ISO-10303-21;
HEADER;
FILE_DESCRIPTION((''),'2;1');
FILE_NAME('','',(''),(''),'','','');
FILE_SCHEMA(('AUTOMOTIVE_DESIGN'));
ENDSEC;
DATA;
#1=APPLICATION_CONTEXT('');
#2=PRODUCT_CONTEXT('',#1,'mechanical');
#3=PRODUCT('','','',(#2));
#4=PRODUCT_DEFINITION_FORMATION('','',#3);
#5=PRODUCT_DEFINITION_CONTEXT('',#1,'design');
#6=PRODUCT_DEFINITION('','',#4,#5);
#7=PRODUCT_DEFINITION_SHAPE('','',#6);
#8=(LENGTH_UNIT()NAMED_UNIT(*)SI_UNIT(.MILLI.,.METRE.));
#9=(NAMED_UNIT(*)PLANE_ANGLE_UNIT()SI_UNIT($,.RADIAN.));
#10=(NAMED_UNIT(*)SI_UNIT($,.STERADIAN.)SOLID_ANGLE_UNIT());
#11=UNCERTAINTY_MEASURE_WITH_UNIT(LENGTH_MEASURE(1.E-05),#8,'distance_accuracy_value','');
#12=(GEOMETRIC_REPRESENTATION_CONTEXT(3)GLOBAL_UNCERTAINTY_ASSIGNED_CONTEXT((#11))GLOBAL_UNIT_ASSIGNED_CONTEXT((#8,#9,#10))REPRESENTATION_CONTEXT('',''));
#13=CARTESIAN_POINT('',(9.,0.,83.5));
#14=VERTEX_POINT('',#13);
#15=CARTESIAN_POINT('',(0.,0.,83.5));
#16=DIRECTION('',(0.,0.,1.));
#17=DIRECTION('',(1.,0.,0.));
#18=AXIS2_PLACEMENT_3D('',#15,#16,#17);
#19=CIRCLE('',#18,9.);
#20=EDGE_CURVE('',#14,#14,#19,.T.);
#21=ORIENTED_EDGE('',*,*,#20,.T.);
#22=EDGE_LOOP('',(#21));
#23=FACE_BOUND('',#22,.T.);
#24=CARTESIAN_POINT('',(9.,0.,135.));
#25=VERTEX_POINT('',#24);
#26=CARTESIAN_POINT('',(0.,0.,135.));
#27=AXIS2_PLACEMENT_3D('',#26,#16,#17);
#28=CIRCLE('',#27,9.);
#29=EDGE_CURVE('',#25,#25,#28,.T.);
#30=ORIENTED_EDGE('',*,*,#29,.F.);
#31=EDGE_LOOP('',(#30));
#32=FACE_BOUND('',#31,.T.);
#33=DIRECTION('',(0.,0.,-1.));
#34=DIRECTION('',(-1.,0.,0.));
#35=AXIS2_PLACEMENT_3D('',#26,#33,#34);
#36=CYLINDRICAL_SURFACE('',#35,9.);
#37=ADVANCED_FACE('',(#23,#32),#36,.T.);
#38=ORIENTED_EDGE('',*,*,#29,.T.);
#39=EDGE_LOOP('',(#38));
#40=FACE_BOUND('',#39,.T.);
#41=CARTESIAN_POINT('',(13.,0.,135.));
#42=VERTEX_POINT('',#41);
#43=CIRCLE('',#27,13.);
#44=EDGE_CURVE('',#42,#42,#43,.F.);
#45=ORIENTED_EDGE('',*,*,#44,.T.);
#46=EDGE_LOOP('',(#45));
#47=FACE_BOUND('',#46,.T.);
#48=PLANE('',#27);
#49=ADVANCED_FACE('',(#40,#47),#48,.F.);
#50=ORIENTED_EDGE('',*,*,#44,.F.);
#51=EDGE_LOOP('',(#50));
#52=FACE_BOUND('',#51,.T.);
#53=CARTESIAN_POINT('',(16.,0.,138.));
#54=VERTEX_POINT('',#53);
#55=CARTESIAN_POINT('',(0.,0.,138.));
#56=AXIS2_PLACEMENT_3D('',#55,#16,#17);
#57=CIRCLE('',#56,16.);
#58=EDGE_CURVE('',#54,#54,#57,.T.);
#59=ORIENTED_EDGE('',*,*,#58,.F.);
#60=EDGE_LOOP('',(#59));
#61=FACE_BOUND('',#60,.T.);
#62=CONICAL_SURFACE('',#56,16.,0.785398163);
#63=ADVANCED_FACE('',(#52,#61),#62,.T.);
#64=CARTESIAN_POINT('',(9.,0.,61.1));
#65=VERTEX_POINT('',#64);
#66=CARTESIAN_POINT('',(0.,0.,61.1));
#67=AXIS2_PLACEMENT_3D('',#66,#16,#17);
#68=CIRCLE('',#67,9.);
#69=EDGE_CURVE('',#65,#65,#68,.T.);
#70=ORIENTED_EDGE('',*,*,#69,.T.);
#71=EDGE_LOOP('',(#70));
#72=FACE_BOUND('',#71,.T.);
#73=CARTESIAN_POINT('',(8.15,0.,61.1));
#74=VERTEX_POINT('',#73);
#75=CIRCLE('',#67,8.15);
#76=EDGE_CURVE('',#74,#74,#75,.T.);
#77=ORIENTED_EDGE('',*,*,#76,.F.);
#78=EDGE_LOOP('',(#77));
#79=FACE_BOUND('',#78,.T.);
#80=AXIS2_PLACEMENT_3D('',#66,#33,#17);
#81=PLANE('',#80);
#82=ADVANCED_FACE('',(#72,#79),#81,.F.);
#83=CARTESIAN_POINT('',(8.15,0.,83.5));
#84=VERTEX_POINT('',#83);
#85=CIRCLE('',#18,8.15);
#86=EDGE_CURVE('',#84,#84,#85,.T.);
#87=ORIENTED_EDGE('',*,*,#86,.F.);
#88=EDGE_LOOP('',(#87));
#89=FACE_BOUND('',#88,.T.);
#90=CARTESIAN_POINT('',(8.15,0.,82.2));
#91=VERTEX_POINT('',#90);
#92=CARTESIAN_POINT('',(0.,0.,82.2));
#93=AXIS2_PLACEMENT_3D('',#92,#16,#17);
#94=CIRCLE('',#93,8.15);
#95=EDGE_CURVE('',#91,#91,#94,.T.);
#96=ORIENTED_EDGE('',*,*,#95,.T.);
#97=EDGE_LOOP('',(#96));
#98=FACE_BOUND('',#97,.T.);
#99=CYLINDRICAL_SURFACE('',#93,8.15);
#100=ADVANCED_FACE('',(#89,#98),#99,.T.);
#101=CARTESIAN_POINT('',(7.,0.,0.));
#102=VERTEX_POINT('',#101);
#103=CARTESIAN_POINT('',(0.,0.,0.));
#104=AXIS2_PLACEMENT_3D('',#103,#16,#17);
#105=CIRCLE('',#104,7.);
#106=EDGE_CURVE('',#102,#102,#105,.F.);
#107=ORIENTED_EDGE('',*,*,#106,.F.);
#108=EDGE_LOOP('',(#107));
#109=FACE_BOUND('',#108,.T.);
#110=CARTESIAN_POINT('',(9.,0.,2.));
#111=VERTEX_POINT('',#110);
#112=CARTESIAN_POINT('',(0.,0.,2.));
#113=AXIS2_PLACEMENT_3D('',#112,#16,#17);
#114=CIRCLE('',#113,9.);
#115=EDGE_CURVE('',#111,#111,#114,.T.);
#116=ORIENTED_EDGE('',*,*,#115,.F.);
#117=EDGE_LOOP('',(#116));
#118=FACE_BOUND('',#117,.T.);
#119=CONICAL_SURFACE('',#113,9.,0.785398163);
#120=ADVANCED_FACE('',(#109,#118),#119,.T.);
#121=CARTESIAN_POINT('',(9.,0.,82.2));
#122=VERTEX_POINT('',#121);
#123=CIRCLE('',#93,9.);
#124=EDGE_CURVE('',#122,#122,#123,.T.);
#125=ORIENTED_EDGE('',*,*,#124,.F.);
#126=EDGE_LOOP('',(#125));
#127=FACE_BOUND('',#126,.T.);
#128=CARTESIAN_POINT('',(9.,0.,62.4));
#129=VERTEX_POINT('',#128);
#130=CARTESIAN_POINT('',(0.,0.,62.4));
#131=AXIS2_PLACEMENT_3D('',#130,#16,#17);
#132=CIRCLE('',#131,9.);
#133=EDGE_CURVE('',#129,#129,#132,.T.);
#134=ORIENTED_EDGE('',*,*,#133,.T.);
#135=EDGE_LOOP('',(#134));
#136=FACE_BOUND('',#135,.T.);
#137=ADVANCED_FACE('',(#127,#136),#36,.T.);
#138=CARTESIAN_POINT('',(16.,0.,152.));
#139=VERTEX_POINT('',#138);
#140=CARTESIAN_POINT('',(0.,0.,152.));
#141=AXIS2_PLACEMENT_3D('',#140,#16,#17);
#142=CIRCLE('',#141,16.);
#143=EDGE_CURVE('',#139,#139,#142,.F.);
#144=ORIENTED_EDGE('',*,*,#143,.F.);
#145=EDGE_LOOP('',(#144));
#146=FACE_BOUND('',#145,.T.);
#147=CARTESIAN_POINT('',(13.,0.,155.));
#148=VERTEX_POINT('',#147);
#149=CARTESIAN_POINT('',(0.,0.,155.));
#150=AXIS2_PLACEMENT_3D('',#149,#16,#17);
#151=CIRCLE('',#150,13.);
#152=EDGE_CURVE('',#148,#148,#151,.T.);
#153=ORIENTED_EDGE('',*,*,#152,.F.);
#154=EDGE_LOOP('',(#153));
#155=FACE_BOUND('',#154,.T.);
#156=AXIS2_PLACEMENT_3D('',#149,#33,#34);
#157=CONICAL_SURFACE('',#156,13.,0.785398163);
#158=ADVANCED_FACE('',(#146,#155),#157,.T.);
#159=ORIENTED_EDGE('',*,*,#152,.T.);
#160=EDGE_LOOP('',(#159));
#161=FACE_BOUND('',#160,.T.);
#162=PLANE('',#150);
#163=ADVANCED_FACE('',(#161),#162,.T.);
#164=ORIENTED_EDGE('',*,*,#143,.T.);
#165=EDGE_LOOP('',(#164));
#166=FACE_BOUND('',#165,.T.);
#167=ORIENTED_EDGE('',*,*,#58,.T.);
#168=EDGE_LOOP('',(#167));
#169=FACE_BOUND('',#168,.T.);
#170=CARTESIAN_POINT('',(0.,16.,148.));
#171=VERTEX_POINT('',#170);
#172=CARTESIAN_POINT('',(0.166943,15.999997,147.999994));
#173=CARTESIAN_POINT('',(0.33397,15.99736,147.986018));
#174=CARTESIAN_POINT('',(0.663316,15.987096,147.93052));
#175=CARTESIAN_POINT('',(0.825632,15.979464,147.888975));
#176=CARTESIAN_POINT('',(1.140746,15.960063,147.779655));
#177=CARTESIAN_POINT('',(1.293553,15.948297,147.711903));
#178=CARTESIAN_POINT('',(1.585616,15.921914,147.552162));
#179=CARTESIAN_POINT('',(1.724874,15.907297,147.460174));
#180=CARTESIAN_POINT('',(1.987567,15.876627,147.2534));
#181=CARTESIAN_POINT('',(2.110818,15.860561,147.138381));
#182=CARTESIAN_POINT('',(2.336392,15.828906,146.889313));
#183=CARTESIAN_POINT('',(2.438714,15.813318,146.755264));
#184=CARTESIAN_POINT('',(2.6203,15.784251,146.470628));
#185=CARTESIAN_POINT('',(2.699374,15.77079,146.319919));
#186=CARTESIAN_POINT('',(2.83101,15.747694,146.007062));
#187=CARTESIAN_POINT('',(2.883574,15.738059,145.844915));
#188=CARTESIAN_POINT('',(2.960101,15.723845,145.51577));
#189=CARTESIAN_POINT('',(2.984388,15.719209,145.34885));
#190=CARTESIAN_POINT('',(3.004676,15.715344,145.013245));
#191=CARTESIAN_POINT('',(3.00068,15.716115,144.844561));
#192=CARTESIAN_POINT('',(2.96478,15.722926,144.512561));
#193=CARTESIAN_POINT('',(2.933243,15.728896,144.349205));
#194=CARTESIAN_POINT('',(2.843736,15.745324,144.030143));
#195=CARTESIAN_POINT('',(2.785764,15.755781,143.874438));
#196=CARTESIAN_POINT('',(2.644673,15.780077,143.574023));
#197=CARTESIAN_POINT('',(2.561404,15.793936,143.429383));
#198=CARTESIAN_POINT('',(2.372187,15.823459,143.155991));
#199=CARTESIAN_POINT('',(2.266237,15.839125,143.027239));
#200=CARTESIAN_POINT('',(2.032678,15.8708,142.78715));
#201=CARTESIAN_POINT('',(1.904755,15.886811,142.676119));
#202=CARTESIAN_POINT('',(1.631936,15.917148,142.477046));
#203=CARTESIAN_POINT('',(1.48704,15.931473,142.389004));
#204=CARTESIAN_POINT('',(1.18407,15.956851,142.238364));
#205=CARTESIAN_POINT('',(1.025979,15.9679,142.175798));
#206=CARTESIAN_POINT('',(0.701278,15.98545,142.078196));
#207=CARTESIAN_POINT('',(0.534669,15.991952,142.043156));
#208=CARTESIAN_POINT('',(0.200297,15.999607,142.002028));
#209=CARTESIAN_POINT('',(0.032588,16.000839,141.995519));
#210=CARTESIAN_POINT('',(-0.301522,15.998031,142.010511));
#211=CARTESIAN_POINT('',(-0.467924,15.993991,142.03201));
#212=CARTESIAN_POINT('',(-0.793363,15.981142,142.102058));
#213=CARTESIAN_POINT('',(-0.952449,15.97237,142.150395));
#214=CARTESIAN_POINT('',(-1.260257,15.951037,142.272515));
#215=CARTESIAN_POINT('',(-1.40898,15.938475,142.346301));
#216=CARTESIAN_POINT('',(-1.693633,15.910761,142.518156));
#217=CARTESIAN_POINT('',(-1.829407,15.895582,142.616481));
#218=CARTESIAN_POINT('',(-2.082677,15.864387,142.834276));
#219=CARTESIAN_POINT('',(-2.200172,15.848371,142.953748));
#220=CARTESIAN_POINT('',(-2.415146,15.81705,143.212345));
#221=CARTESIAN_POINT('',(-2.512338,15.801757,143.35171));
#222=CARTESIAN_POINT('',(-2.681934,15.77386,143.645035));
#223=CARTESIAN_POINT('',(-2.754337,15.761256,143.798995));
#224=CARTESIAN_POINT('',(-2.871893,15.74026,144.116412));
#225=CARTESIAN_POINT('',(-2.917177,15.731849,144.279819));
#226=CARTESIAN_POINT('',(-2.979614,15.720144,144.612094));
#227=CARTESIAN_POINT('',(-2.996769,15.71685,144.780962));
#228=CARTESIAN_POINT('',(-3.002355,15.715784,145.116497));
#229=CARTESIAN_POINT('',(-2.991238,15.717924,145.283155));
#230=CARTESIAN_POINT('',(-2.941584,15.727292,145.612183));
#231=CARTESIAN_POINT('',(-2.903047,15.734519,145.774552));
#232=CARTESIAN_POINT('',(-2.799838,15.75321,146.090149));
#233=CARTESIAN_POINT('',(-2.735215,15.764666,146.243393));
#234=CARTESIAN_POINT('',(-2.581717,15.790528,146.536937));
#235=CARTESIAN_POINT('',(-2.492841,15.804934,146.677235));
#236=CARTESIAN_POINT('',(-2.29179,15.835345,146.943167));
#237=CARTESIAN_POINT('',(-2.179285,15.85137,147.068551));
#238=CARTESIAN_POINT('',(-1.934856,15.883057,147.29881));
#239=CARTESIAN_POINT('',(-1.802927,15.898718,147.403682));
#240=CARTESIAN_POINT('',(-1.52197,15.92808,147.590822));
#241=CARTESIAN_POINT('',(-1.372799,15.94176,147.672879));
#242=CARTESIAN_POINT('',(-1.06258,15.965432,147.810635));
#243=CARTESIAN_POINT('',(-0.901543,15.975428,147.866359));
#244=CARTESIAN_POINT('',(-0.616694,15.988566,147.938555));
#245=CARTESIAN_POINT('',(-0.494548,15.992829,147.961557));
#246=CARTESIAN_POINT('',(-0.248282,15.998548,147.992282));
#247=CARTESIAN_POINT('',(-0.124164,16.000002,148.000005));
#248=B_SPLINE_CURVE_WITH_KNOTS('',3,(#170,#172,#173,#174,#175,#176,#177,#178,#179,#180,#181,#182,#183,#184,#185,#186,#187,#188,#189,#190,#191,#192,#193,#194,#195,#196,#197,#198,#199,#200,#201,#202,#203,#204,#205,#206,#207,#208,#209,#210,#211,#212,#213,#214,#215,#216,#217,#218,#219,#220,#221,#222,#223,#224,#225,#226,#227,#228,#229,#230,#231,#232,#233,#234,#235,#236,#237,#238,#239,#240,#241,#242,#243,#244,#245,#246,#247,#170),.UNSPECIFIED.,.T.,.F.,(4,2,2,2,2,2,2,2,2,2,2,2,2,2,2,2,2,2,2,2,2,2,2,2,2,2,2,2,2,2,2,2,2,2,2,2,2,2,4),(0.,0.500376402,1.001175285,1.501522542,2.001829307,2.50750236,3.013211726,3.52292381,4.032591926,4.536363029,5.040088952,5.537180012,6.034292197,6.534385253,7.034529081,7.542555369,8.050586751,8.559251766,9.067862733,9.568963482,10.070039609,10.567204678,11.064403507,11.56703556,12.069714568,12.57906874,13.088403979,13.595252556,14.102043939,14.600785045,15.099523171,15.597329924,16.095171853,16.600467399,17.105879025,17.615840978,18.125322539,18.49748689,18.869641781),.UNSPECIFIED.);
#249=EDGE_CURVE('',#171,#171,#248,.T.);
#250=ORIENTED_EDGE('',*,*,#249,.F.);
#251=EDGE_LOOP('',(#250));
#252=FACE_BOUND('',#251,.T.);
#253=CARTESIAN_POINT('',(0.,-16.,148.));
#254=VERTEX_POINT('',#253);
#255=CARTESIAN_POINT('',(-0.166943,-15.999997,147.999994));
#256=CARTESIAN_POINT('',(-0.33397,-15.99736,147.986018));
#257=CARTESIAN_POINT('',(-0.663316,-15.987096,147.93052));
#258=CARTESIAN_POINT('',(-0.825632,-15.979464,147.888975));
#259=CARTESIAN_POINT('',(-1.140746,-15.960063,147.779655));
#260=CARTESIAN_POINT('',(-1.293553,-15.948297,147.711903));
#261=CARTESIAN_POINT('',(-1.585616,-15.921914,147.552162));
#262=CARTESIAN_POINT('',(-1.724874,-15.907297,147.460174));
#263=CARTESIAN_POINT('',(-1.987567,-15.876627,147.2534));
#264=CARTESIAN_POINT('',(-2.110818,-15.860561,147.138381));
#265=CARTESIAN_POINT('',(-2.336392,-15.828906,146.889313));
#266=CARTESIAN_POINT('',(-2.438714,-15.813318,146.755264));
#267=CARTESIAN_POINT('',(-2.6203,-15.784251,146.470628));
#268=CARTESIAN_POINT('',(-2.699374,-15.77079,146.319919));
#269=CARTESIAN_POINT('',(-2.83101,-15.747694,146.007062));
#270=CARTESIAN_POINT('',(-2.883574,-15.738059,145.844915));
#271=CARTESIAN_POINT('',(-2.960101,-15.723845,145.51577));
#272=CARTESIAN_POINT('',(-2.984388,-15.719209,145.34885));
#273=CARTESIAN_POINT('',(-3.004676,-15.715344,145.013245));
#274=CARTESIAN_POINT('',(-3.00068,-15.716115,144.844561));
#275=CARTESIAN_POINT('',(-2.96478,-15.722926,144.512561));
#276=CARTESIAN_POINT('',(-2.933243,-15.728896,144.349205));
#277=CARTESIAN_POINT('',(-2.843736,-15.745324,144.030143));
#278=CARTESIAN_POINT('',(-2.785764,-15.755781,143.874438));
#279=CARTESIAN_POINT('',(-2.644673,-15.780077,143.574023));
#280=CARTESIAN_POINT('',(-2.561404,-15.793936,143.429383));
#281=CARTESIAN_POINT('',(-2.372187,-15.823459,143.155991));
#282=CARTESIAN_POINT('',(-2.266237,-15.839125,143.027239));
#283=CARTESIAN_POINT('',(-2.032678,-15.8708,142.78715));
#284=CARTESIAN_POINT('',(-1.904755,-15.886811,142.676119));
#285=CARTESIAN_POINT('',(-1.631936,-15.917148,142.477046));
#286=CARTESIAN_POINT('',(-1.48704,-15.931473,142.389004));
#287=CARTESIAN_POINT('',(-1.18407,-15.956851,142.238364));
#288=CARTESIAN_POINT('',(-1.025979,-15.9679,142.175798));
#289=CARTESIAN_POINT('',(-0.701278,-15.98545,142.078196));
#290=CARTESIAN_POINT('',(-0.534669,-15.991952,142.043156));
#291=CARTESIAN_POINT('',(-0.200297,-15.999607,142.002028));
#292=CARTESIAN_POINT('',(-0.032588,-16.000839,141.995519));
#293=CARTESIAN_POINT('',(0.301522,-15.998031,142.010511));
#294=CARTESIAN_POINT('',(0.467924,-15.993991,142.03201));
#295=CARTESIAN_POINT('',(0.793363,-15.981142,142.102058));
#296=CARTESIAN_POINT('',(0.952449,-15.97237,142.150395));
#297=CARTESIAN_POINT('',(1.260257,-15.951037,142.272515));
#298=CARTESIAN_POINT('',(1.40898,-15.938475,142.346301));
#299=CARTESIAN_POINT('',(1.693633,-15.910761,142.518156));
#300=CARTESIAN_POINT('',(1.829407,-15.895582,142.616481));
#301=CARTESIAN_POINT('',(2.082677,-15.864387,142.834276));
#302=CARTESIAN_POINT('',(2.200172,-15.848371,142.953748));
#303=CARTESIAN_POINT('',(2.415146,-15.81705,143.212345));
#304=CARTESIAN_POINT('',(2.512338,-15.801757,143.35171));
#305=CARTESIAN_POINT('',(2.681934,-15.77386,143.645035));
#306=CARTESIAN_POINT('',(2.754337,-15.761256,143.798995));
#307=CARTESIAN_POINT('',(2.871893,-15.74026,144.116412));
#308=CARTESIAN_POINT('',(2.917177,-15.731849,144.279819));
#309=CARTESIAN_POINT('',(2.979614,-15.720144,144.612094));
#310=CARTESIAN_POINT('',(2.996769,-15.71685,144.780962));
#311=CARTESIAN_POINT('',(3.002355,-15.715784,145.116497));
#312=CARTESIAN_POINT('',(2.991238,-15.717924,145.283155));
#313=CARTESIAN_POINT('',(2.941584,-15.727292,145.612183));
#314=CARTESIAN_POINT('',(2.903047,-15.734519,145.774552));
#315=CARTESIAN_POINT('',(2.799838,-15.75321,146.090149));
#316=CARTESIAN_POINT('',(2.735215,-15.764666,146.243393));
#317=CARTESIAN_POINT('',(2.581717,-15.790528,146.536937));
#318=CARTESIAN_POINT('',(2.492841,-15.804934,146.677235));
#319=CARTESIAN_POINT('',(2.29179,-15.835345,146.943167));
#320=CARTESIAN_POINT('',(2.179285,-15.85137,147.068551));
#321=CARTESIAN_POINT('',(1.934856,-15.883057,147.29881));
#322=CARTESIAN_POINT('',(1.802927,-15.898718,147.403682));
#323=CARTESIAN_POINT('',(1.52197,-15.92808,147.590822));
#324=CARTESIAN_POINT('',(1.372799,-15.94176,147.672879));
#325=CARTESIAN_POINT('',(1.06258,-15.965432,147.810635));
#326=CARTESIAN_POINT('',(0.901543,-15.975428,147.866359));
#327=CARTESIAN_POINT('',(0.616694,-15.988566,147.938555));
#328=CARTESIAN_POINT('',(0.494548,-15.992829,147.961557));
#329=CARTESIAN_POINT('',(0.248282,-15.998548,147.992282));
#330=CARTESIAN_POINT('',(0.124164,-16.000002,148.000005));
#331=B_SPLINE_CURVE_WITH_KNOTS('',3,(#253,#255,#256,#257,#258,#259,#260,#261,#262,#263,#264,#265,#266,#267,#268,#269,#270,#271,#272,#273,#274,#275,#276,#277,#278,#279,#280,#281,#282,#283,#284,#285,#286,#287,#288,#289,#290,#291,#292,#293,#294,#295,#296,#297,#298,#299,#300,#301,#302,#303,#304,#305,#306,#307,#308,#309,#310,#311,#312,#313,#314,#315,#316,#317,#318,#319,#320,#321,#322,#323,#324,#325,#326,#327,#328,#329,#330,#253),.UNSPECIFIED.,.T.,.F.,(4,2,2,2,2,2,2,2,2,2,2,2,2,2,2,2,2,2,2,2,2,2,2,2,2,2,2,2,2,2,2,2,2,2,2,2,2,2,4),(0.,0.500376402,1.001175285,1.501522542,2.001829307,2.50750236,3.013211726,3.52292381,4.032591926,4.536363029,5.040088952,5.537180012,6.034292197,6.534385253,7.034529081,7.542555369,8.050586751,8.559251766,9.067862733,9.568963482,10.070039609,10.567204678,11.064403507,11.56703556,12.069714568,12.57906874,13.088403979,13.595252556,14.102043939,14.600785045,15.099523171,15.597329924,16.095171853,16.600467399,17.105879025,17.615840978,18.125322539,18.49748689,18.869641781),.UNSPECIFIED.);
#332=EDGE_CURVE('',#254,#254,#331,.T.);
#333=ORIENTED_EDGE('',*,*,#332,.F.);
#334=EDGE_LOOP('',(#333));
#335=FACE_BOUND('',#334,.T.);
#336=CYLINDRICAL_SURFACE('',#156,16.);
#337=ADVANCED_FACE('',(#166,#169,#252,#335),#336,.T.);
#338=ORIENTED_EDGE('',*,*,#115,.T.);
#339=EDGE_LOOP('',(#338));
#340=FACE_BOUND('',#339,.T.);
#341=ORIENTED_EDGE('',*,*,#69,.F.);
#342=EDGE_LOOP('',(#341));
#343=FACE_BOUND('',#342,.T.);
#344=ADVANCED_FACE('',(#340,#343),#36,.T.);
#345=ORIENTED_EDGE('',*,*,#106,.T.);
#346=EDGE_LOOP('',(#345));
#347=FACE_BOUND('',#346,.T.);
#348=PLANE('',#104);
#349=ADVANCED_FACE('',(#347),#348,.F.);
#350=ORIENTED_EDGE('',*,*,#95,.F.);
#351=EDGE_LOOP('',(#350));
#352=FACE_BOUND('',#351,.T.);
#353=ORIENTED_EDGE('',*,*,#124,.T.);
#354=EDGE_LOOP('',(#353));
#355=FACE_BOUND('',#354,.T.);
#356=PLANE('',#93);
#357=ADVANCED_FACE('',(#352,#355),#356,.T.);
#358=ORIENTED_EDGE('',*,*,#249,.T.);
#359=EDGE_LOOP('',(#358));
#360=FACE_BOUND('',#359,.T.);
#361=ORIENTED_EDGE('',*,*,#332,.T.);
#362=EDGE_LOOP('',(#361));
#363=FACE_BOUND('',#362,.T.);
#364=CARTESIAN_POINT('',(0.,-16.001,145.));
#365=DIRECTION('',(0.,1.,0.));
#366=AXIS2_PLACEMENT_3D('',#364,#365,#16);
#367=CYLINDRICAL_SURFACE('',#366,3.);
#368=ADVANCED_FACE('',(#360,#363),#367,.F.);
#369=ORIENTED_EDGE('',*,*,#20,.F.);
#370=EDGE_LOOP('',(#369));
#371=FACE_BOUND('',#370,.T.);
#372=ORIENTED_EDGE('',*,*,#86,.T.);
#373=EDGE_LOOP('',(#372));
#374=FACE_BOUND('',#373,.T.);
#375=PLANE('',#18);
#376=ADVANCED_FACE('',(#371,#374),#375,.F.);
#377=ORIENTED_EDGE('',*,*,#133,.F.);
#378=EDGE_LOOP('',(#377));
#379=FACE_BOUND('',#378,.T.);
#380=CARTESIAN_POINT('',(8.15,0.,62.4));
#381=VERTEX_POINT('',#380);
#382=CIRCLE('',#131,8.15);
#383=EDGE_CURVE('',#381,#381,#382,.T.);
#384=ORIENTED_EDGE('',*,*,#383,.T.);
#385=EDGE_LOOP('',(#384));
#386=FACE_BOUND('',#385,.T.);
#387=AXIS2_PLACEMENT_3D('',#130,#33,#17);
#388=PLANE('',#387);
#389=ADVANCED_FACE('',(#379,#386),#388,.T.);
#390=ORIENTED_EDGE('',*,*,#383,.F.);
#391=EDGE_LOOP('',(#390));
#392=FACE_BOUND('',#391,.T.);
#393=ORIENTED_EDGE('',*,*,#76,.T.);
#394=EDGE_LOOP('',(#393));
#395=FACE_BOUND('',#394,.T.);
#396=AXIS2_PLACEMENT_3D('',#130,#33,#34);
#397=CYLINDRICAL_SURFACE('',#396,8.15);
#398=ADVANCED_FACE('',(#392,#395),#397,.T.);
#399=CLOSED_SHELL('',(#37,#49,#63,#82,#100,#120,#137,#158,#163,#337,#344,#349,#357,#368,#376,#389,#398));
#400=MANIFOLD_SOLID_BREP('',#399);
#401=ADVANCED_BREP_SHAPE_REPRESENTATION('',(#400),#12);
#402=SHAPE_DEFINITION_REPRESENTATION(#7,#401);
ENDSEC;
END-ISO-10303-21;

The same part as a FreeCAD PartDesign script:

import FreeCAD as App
import Part
import Sketcher

V = App.Vector
Q = App.Units.Quantity


def edges_at(feature, points):
    """Names of the edges that pass closest to the given points."""
    edges = feature.Shape.Edges
    near = lambda p: min(range(len(edges)), key=lambda i: edges[i].distToShape(Part.Vertex(*p))[0])
    return sorted({f"Edge{near(p) + 1}" for p in points})

doc = App.newDocument("Part")
body = doc.addObject("PartDesign::Body", "Body")

sketch1 = doc.addObject("Sketcher::SketchObject", "Sketch")
body.addObject(sketch1)
sketch1.AttachmentSupport = (doc.XY_Plane, [""])
sketch1.MapMode = "FlatFace"
sketch1.addGeometry(Part.Circle(V(0, 0, 0), V(0, 0, 1), 9), False)
sketch1.addConstraint(Sketcher.Constraint("Coincident", 0, 3, -1, 1))
sketch1.addConstraint(Sketcher.Constraint("Diameter", 0, Q("18 mm")))
pad1 = doc.addObject("PartDesign::Pad", "Pad")
body.addObject(pad1)
pad1.Profile = sketch1
pad1.Length = 135

sketch2 = doc.addObject("Sketcher::SketchObject", "Sketch001")
body.addObject(sketch2)
sketch2.AttachmentSupport = (doc.XY_Plane, [""])
sketch2.MapMode = "FlatFace"
sketch2.AttachmentOffset = App.Placement(V(0, 0, 135), App.Rotation())
sketch2.addGeometry(Part.Circle(V(0, 0, 0), V(0, 0, 1), 16), False)
sketch2.addConstraint(Sketcher.Constraint("Coincident", 0, 3, -1, 1))
sketch2.addConstraint(Sketcher.Constraint("Diameter", 0, Q("32 mm")))
pad2 = doc.addObject("PartDesign::Pad", "Pad001")
body.addObject(pad2)
pad2.Profile = sketch2
pad2.Length = 20

sketch3 = doc.addObject("Sketcher::SketchObject", "Sketch002")
body.addObject(sketch3)
sketch3.AttachmentSupport = (doc.XZ_Plane, [""])
sketch3.MapMode = "FlatFace"
sketch3.AttachmentOffset = App.Placement(V(0, 0, -16), App.Rotation())
sketch3.addGeometry(Part.Circle(V(0, 145, 0), V(0, 0, 1), 3), False)
sketch3.addConstraint(Sketcher.Constraint("PointOnObject", 0, 3, -2))
sketch3.addConstraint(Sketcher.Constraint("Diameter", 0, Q("6 mm")))
sketch3.addConstraint(Sketcher.Constraint("DistanceY", -1, 1, 0, 3, Q("145 mm")))
pocket1 = doc.addObject("PartDesign::Pocket", "Pocket")
body.addObject(pocket1)
pocket1.Profile = sketch3
pocket1.Length = 32
pocket1.Reversed = True
doc.recompute()

chamfer = doc.addObject("PartDesign::Chamfer", "Chamfer")
body.addObject(chamfer)
chamfer.Base = (pocket1, edges_at(pocket1, [(-16, 0, 135), (-16, 0, 155)]))
chamfer.Size = 3
doc.recompute()

chamfer2 = doc.addObject("PartDesign::Chamfer", "Chamfer001")
body.addObject(chamfer2)
chamfer2.Base = (chamfer, edges_at(chamfer, [(-9, 0, 0)]))
chamfer2.Size = 2

sketch4 = doc.addObject("Sketcher::SketchObject", "Sketch003")
body.addObject(sketch4)
sketch4.AttachmentSupport = (doc.XY_Plane, [""])
sketch4.MapMode = "FlatFace"
sketch4.AttachmentOffset = App.Placement(V(0, 0, 82.2), App.Rotation())
sketch4.addGeometry(Part.Circle(V(0, 0, 0), V(0, 0, 1), 9), False)
sketch4.addGeometry(Part.Circle(V(0, 0, 0), V(0, 0, 1), 8.15), False)
sketch4.addConstraint(Sketcher.Constraint("Coincident", 0, 3, -1, 1))
sketch4.addConstraint(Sketcher.Constraint("Coincident", 1, 3, -1, 1))
sketch4.addConstraint(Sketcher.Constraint("Diameter", 0, Q("18 mm")))
sketch4.addConstraint(Sketcher.Constraint("Diameter", 1, Q("16.3 mm")))
pocket2 = doc.addObject("PartDesign::Pocket", "Pocket001")
body.addObject(pocket2)
pocket2.Profile = sketch4
pocket2.Length = 1.3
pocket2.Reversed = True
doc.recompute()

datumplane = doc.addObject("PartDesign::Plane", "DatumPlane")
body.addObject(datumplane)
datumplane.AttachmentSupport = (doc.XY_Plane, [""])
datumplane.MapMode = "FlatFace"
datumplane.AttachmentOffset = App.Placement(V(0, 0, 72.3), App.Rotation())
mirrored = doc.addObject("PartDesign::Mirrored", "Mirrored")
body.addObject(mirrored)
mirrored.Originals = [pocket2]
mirrored.MirrorPlane = (datumplane, [""])
body.Tip = mirrored

doc.recompute()
